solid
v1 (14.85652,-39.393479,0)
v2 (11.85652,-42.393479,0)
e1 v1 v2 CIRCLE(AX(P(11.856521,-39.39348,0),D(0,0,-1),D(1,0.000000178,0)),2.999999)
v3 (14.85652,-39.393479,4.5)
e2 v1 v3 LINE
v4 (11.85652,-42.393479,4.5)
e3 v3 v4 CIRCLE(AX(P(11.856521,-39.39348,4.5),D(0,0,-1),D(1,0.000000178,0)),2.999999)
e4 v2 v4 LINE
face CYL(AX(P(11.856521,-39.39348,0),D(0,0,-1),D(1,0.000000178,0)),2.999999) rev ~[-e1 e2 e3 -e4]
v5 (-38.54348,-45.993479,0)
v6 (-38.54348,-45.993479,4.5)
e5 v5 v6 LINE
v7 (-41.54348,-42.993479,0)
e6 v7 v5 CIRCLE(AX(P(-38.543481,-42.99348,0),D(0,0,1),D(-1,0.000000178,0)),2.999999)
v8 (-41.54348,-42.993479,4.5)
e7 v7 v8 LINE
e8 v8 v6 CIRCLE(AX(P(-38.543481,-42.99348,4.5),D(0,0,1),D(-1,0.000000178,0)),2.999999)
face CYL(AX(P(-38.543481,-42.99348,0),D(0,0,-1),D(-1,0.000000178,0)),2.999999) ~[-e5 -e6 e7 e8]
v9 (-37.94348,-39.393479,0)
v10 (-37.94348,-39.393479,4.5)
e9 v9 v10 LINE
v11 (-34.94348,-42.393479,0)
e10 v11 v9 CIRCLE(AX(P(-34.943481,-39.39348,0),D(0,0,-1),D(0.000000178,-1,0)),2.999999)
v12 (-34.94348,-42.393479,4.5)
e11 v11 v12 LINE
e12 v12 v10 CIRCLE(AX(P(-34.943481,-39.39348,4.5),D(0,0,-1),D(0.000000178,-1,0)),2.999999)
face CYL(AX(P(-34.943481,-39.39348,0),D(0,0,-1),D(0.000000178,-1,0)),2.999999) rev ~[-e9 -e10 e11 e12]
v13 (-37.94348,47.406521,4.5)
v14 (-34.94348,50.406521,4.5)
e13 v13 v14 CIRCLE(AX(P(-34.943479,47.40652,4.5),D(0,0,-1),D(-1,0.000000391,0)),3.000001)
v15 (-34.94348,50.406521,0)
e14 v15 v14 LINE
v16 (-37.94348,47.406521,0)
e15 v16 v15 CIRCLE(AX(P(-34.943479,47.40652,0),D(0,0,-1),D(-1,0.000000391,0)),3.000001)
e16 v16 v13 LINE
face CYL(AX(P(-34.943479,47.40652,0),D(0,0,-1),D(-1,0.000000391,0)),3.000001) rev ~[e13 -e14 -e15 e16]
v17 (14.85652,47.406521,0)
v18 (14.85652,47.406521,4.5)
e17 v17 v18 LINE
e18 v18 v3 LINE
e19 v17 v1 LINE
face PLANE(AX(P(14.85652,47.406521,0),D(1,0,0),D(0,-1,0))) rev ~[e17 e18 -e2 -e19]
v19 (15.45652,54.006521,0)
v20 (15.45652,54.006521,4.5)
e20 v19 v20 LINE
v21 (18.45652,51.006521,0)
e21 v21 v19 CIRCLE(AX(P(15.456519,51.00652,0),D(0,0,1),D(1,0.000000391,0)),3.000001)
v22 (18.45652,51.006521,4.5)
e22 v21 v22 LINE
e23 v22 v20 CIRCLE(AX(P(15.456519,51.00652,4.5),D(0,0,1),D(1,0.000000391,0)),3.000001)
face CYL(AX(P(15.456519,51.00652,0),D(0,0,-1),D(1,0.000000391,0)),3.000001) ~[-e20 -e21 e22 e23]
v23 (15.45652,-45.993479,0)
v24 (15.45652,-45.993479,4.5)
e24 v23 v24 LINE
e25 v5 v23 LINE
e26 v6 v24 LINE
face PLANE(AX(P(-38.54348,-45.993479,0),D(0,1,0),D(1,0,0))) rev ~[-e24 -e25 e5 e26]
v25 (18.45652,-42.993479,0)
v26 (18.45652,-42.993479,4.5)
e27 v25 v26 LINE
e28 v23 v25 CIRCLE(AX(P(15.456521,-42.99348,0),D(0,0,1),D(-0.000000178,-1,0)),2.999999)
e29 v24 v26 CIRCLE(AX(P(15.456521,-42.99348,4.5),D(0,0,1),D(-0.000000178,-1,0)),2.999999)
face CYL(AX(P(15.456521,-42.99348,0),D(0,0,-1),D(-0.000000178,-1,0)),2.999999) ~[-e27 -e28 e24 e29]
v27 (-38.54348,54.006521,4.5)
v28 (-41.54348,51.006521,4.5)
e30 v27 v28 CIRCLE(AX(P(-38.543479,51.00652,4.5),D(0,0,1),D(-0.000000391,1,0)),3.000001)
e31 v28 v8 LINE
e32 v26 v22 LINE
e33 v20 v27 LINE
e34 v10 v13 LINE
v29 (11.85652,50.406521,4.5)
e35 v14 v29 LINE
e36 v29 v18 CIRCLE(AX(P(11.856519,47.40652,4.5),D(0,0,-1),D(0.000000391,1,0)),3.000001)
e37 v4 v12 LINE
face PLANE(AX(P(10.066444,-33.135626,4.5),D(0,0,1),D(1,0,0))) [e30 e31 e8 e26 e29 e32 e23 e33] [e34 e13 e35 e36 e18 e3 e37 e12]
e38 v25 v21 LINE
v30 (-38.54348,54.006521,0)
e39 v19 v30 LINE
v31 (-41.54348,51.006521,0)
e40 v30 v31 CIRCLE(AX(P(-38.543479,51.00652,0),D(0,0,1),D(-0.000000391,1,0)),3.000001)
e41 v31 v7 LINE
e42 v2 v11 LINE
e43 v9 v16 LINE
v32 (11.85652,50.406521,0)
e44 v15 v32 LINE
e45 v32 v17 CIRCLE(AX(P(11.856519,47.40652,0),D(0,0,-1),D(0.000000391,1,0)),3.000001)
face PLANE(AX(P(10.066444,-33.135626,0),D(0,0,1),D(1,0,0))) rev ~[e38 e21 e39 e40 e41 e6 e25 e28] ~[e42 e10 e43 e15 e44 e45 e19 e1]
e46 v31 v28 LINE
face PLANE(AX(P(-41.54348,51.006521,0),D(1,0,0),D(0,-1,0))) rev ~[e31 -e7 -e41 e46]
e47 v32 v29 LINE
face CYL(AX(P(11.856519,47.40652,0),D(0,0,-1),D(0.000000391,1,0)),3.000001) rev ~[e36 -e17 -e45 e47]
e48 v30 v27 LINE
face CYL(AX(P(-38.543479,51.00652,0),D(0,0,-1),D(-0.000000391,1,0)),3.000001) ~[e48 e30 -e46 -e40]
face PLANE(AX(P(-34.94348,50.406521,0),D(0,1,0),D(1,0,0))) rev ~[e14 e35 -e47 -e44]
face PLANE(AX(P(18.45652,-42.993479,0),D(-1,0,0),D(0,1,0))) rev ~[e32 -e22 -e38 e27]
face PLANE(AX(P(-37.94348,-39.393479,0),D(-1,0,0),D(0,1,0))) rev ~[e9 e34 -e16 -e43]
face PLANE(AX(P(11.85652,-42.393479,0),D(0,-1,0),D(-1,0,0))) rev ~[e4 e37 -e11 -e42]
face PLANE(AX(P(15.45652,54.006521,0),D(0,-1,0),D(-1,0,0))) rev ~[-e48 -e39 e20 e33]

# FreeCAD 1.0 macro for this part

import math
import FreeCAD as App
import Part
import Sketcher

V = App.Vector
Q = App.Units.Quantity

doc = App.newDocument("Part")
body = doc.addObject("PartDesign::Body", "Body")

# Sketch on XY plane
sketch1 = body.newObject("Sketcher::SketchObject", "Sketch")
sketch1.AttachmentSupport = (doc.getObject("XY_Plane"), [""])
sketch1.MapMode = "FlatFace"
sketch1.addGeometry(Part.LineSegment(V(18.45652, -42.993479, 0), V(18.45652, 51.006521, 0)), False)
sketch1.addGeometry(Part.ArcOfCircle(Part.Circle(V(15.456519, 51.00652, 0), V(0, 0, 1), 3.000001), math.radians(0.000022), math.radians(89.999978)), False)
sketch1.addGeometry(Part.LineSegment(V(15.45652, 54.006521, 0), V(-38.54348, 54.006521, 0)), False)
sketch1.addGeometry(Part.ArcOfCircle(Part.Circle(V(-38.543479, 51.00652, 0), V(0, 0, 1), 3.000001), math.radians(90.000022), math.radians(179.999978)), False)
sketch1.addGeometry(Part.LineSegment(V(-41.54348, 51.006521, 0), V(-41.54348, -42.993479, 0)), False)
sketch1.addGeometry(Part.ArcOfCircle(Part.Circle(V(-38.543481, -42.99348, 0), V(0, 0, 1), 2.999999), math.radians(179.99999), math.radians(270.00001)), False)
sketch1.addGeometry(Part.LineSegment(V(-38.54348, -45.993479, 0), V(15.45652, -45.993479, 0)), False)
sketch1.addGeometry(Part.ArcOfCircle(Part.Circle(V(15.456521, -42.99348, 0), V(0, 0, 1), 2.999999), math.radians(-90.00001), math.radians(0.00001)), False)
sketch1.addGeometry(Part.ArcOfCircle(Part.Circle(V(11.856519, 47.40652, 0), V(0, 0, 1), 3.000001), math.radians(0.000022), math.radians(89.999978)), False)
sketch1.addGeometry(Part.LineSegment(V(14.85652, 47.406521, 0), V(14.85652, -39.393479, 0)), False)
sketch1.addGeometry(Part.ArcOfCircle(Part.Circle(V(11.856521, -39.39348, 0), V(0, 0, 1), 2.999999), math.radians(-90.00001), math.radians(0.00001)), False)
sketch1.addGeometry(Part.LineSegment(V(11.85652, -42.393479, 0), V(-34.94348, -42.393479, 0)), False)
sketch1.addGeometry(Part.ArcOfCircle(Part.Circle(V(-34.943481, -39.39348, 0), V(0, 0, 1), 2.999999), math.radians(179.99999), math.radians(270.00001)), False)
sketch1.addGeometry(Part.LineSegment(V(-37.94348, -39.393479, 0), V(-37.94348, 47.406521, 0)), False)
sketch1.addGeometry(Part.ArcOfCircle(Part.Circle(V(-34.943479, 47.40652, 0), V(0, 0, 1), 3.000001), math.radians(90.000022), math.radians(179.999978)), False)
sketch1.addGeometry(Part.LineSegment(V(-34.94348, 50.406521, 0), V(11.85652, 50.406521, 0)), False)
sketch1.addConstraint(Sketcher.Constraint("Tangent", 0, 2, 1, 1))
sketch1.addConstraint(Sketcher.Constraint("Tangent", 1, 2, 2, 1))
sketch1.addConstraint(Sketcher.Constraint("Tangent", 2, 2, 3, 1))
sketch1.addConstraint(Sketcher.Constraint("Tangent", 3, 2, 4, 1))
sketch1.addConstraint(Sketcher.Constraint("Tangent", 4, 2, 5, 1))
sketch1.addConstraint(Sketcher.Constraint("Tangent", 5, 2, 6, 1))
sketch1.addConstraint(Sketcher.Constraint("Tangent", 6, 2, 7, 1))
sketch1.addConstraint(Sketcher.Constraint("Tangent", 7, 2, 0, 1))
sketch1.addConstraint(Sketcher.Constraint("Tangent", 8, 1, 9, 1))
sketch1.addConstraint(Sketcher.Constraint("Tangent", 9, 2, 10, 2))
sketch1.addConstraint(Sketcher.Constraint("Tangent", 10, 1, 11, 1))
sketch1.addConstraint(Sketcher.Constraint("Tangent", 11, 2, 12, 2))
sketch1.addConstraint(Sketcher.Constraint("Tangent", 12, 1, 13, 1))
sketch1.addConstraint(Sketcher.Constraint("Tangent", 13, 2, 14, 2))
sketch1.addConstraint(Sketcher.Constraint("Tangent", 14, 1, 15, 1))
sketch1.addConstraint(Sketcher.Constraint("Tangent", 15, 2, 8, 2))
sketch1.addConstraint(Sketcher.Constraint("Vertical", 0))
sketch1.addConstraint(Sketcher.Constraint("Horizontal", 2))
sketch1.addConstraint(Sketcher.Constraint("Vertical", 4))
sketch1.addConstraint(Sketcher.Constraint("Horizontal", 6))
sketch1.addConstraint(Sketcher.Constraint("Vertical", 9))
sketch1.addConstraint(Sketcher.Constraint("Horizontal", 11))
sketch1.addConstraint(Sketcher.Constraint("Vertical", 13))
sketch1.addConstraint(Sketcher.Constraint("Horizontal", 15))
sketch1.addConstraint(Sketcher.Constraint("Equal", 1, 3))
sketch1.addConstraint(Sketcher.Constraint("Equal", 3, 5))
sketch1.addConstraint(Sketcher.Constraint("Equal", 5, 7))
sketch1.addConstraint(Sketcher.Constraint("Equal", 7, 8))
sketch1.addConstraint(Sketcher.Constraint("Equal", 8, 10))
sketch1.addConstraint(Sketcher.Constraint("Equal", 10, 12))
sketch1.addConstraint(Sketcher.Constraint("Equal", 12, 14))
sketch1.addConstraint(Sketcher.Constraint("Radius", 1, Q("3.000001 mm")))
sketch1.addConstraint(Sketcher.Constraint("DistanceX", 2, 2, 2, 1, Q("54 mm")))
sketch1.addConstraint(Sketcher.Constraint("DistanceY", 0, 1, 0, 2, Q("94 mm")))
sketch1.addConstraint(Sketcher.Constraint("DistanceX", 11, 2, 11, 1, Q("46.8 mm")))
sketch1.addConstraint(Sketcher.Constraint("DistanceY", 9, 2, 9, 1, Q("86.8 mm")))
sketch1.addConstraint(Sketcher.Constraint("DistanceX", 8, 3, 1, 3, Q("3.6 mm")))
sketch1.addConstraint(Sketcher.Constraint("DistanceY", 8, 3, 1, 3, Q("3.6 mm")))
sketch1.addConstraint(Sketcher.Constraint("DistanceX", -1, 1, 1, 3, Q("15.456519 mm")))
sketch1.addConstraint(Sketcher.Constraint("DistanceY", -1, 1, 1, 3, Q("51.00652 mm")))
pad1 = body.newObject("PartDesign::Pad", "Pad")
pad1.Profile = sketch1
pad1.Length = 4.5

doc.recompute()
